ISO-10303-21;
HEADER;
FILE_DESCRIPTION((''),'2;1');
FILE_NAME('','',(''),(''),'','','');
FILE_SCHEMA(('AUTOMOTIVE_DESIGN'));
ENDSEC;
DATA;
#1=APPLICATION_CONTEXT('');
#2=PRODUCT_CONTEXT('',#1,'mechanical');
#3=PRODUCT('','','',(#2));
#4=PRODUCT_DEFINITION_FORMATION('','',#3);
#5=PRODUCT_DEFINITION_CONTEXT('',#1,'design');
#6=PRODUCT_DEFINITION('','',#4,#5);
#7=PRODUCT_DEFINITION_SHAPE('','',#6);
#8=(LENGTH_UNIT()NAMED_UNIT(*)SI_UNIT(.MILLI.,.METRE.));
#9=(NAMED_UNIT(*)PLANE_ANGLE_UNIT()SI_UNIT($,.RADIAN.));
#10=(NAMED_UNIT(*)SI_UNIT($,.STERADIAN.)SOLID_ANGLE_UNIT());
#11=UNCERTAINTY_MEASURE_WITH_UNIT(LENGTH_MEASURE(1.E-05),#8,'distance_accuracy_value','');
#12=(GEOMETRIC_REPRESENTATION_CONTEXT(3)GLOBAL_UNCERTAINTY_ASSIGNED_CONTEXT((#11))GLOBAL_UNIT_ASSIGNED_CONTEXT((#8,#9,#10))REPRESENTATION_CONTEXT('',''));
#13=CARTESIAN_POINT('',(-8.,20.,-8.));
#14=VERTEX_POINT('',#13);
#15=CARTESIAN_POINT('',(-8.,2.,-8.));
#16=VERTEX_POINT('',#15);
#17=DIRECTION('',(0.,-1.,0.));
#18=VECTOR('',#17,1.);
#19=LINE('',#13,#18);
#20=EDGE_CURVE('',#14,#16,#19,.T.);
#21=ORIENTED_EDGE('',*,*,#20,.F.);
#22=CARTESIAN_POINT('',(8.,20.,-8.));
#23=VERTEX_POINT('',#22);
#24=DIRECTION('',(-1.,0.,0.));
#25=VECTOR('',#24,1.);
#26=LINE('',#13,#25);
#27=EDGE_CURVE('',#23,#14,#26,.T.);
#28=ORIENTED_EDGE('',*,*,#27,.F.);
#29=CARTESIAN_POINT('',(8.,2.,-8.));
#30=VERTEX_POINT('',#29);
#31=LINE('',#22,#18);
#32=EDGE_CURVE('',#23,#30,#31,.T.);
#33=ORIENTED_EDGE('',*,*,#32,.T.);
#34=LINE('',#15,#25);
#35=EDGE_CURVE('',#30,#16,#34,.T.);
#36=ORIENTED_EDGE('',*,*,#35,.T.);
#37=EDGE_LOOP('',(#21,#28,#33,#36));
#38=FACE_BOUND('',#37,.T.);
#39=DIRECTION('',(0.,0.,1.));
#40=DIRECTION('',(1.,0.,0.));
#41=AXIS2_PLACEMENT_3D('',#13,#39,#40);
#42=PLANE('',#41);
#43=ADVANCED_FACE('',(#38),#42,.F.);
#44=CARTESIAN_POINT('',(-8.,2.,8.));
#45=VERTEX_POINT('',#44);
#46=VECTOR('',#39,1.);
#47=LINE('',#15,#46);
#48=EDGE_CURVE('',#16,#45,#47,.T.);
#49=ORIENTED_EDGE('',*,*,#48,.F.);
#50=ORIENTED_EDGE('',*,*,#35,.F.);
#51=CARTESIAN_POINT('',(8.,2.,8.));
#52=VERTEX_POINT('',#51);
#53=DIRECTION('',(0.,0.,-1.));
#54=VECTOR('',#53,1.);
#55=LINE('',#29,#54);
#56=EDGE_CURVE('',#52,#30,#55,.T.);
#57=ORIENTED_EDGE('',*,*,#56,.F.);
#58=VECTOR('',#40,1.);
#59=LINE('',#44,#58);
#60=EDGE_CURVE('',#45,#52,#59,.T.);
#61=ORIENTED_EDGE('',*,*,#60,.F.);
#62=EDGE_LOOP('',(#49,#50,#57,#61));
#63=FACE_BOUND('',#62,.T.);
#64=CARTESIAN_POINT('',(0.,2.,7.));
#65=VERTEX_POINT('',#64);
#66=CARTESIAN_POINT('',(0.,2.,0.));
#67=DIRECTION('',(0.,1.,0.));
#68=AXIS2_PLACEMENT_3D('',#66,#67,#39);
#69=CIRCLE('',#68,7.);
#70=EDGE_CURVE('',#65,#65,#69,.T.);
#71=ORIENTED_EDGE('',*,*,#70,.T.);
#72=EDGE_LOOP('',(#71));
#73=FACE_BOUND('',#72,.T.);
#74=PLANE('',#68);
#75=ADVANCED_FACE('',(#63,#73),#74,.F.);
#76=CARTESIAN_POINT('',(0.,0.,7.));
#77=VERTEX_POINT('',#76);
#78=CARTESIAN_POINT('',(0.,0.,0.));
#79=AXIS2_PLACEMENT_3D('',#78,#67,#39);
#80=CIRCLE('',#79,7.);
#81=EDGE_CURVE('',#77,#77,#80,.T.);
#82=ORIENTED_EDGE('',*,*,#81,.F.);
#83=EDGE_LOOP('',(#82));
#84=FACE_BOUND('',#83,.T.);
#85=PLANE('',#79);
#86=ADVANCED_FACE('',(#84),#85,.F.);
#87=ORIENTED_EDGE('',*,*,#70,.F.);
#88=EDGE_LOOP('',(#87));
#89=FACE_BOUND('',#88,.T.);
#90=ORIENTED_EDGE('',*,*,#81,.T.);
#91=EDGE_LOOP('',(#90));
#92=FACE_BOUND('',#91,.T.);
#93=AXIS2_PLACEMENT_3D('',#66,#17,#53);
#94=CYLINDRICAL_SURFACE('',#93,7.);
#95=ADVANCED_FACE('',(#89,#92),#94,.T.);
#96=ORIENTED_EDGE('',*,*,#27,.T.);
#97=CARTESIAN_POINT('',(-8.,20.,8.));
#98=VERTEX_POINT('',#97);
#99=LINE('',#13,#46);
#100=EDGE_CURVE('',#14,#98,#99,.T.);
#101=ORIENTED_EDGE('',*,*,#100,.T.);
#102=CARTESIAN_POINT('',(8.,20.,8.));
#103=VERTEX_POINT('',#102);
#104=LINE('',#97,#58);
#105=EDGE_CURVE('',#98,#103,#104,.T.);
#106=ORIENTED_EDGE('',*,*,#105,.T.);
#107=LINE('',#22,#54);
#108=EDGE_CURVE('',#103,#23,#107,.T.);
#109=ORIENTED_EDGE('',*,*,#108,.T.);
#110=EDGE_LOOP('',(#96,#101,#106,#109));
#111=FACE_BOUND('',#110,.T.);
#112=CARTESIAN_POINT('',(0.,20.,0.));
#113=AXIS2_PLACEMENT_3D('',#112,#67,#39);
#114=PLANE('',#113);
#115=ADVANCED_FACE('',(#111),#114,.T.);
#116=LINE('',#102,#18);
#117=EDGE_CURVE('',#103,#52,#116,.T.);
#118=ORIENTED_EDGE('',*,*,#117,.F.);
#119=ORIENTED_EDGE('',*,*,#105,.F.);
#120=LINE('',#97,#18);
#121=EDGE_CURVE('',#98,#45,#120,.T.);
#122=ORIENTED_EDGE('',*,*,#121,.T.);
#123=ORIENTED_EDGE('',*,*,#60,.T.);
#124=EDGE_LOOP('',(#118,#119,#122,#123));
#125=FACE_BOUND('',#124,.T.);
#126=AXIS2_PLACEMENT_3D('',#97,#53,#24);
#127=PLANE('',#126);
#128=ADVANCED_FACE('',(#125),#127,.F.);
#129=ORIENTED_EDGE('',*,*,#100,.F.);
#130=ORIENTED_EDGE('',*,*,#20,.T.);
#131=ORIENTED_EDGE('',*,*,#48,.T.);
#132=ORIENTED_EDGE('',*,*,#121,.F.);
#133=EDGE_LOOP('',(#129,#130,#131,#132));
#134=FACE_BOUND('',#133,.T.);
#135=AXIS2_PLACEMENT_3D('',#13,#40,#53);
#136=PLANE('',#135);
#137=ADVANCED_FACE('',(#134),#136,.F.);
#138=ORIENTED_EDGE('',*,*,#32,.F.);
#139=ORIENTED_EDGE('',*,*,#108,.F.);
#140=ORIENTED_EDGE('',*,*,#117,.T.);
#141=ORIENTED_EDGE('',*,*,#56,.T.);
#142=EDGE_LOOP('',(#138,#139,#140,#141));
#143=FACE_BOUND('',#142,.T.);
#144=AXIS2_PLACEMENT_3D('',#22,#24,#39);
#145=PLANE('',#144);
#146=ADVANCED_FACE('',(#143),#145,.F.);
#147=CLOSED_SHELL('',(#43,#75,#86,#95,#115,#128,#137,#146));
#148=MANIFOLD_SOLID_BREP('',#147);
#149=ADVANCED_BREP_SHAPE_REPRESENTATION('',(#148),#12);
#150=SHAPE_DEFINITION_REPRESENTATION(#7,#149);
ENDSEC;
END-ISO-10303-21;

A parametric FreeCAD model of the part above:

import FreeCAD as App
import Part
import Sketcher
from FreeCAD import Vector
Q = App.Units.Quantity

doc = App.newDocument("Part")
params = doc.addObject("Spreadsheet::Sheet", "Params")
for row, (alias, value) in enumerate([
    ("sketch1_diameter", "14 mm"),
    ("pad1_length", "2 mm"),
    ("sketch2_width", "16 mm"),
    ("pad2_length", "18 mm"),
], start=1):
    params.set(f"A{row}", alias)
    params.set(f"B{row}", "=" + value)
    params.setAlias(f"B{row}", alias)

body = doc.addObject("PartDesign::Body", "Body")

sketch1 = doc.addObject("Sketcher::SketchObject", "Sketch")
body.addObject(sketch1)
sketch1.AttachmentSupport = (doc.XZ_Plane, [""])
sketch1.MapMode = "FlatFace"
sketch1.addGeometry(Part.Circle(Vector(0, 0, 0), Vector(0, 0, 1), 7), False)
sketch1.addConstraint(Sketcher.Constraint("Coincident", 0, 3, -1, 1))
sketch1.addConstraint(Sketcher.Constraint("Diameter", 0, Q("14 mm")))
sketch1.setExpression("Constraints[1]", "Params.sketch1_diameter")
pad1 = doc.addObject("PartDesign::Pad", "Pad")
body.addObject(pad1)
pad1.Profile = sketch1
pad1.setExpression("Length", "Params.pad1_length")
pad1.Reversed = True

sketch2 = doc.addObject("Sketcher::SketchObject", "Sketch001")
body.addObject(sketch2)
sketch2.AttachmentSupport = (doc.XZ_Plane, [""])
sketch2.MapMode = "FlatFace"
sketch2.AttachmentOffset = App.Placement(Vector(0, 0, -2), App.Rotation())
sketch2.addGeometry(Part.LineSegment(Vector(-8, -8, 0), Vector(-8, 8, 0)), False)
sketch2.addGeometry(Part.LineSegment(Vector(-8, 8, 0), Vector(8, 8, 0)), False)
sketch2.addGeometry(Part.LineSegment(Vector(8, 8, 0), Vector(8, -8, 0)), False)
sketch2.addGeometry(Part.LineSegment(Vector(8, -8, 0), Vector(-8, -8, 0)), False)
sketch2.addConstraint(Sketcher.Constraint("Coincident", 0, 2, 1, 1))
sketch2.addConstraint(Sketcher.Constraint("Coincident", 1, 2, 2, 1))
sketch2.addConstraint(Sketcher.Constraint("Coincident", 2, 2, 3, 1))
sketch2.addConstraint(Sketcher.Constraint("Coincident", 3, 2, 0, 1))
sketch2.addConstraint(Sketcher.Constraint("Vertical", 0))
sketch2.addConstraint(Sketcher.Constraint("Horizontal", 1))
sketch2.addConstraint(Sketcher.Constraint("Vertical", 2))
sketch2.addConstraint(Sketcher.Constraint("Horizontal", 3))
sketch2.addConstraint(Sketcher.Constraint("Symmetric", 0, 2, 2, 2, -1, 1))
sketch2.addConstraint(Sketcher.Constraint("Equal", 3, 0))
sketch2.addConstraint(Sketcher.Constraint("DistanceX", 1, 1, 1, 2, Q("16 mm")))
sketch2.setExpression("Constraints[10]", "Params.sketch2_width")
pad2 = doc.addObject("PartDesign::Pad", "Pad001")
body.addObject(pad2)
pad2.Profile = sketch2
pad2.setExpression("Length", "Params.pad2_length")
pad2.Reversed = True

doc.recompute()
